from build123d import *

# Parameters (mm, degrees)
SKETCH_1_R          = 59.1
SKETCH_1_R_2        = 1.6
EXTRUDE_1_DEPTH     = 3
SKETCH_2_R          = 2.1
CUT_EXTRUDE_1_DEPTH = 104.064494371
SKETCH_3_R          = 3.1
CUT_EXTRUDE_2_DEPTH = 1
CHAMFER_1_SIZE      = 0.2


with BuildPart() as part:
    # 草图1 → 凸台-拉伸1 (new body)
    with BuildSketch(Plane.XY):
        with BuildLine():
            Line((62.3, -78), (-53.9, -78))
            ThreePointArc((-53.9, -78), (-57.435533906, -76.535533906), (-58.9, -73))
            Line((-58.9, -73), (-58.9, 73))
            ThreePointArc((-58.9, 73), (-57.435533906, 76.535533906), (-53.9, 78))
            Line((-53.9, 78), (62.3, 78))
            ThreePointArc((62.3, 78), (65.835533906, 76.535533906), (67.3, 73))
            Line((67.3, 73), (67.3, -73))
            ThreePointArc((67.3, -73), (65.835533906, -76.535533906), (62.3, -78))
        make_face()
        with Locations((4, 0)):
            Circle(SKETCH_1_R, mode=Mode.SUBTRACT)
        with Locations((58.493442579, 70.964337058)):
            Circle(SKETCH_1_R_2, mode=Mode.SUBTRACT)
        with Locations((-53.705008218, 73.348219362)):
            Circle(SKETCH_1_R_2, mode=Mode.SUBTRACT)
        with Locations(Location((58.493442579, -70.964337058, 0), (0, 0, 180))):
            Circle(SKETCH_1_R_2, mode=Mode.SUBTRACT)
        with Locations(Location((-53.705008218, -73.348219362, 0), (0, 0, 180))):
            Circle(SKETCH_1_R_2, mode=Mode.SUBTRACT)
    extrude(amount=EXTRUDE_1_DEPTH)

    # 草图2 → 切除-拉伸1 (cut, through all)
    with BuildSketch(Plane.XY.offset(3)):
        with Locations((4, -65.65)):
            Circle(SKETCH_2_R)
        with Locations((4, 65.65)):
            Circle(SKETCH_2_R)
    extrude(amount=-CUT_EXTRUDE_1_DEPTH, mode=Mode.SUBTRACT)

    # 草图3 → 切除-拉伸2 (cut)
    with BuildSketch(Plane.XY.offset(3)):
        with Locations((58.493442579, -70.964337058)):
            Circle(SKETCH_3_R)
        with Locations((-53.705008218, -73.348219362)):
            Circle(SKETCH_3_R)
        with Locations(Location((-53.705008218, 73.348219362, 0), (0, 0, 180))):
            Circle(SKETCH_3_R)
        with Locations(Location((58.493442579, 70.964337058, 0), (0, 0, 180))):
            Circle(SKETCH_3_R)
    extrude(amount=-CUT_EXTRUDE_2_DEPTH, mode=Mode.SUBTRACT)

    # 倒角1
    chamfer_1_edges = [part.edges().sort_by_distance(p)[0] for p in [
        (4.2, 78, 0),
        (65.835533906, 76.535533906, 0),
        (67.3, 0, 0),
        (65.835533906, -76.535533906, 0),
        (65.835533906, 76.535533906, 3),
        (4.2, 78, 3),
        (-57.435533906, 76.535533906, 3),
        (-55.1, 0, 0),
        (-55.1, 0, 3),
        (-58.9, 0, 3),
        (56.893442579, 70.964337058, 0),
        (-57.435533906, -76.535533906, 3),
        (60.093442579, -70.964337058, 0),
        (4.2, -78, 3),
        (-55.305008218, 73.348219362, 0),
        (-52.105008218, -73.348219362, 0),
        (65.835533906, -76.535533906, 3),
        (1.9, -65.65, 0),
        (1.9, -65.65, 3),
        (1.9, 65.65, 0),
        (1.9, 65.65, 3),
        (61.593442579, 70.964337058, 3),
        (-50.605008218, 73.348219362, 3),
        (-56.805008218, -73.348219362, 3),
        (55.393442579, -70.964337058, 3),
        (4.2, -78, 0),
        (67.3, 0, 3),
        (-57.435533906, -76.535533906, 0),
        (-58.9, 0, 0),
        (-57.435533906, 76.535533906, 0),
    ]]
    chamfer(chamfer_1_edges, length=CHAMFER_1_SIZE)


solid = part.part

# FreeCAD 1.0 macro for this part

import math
import FreeCAD as App
import Part
import Sketcher

V = App.Vector
Q = App.Units.Quantity


def edges_at(feature, points):
    """Names of the edges that pass closest to the given points."""
    edges = feature.Shape.Edges
    near = lambda p: min(range(len(edges)), key=lambda i: edges[i].distToShape(Part.Vertex(*p))[0])
    return sorted({f"Edge{near(p) + 1}" for p in points})

doc = App.newDocument("Part")
params = doc.addObject("Spreadsheet::Sheet", "Params")
for row, (alias, value) in enumerate([
    ("sketch1_radius", "5 mm"),
    ("sketch1_diameter", "3.2 mm"),
    ("sketch1_diameter2", "118.2 mm"),
    ("sketch1_height", "146 mm"),
    ("sketch1_width", "116.2 mm"),
    ("pad1_length", "3 mm"),
    ("sketch2_diameter", "4.2 mm"),
    ("sketch3_diameter", "6.2 mm"),
    ("pocket2_length", "1 mm"),
    ("chamfer_size", "0.2 mm"),
], start=1):
    params.set(f"A{row}", alias)
    params.set(f"B{row}", "=" + value)
    params.setAlias(f"B{row}", alias)

body = doc.addObject("PartDesign::Body", "Body")

sketch1 = body.newObject("Sketcher::SketchObject", "Sketch")
sketch1.AttachmentSupport = (doc.getObject("XY_Plane"), [""])
sketch1.MapMode = "FlatFace"
sketch1.addGeometry([
    Part.LineSegment(V(-53.9, -78, 0), V(62.3, -78, 0)),
    Part.ArcOfCircle(Part.Circle(V(62.3, -73, 0), V(0, 0, 1), 5), math.radians(-90), math.radians(0)),
    Part.LineSegment(V(67.3, -73, 0), V(67.3, 73, 0)),
    Part.ArcOfCircle(Part.Circle(V(62.3, 73, 0), V(0, 0, 1), 5), math.radians(0), math.radians(90)),
    Part.LineSegment(V(62.3, 78, 0), V(-53.9, 78, 0)),
    Part.ArcOfCircle(Part.Circle(V(-53.9, 73, 0), V(0, 0, 1), 5), math.radians(90), math.radians(180)),
    Part.LineSegment(V(-58.9, 73, 0), V(-58.9, -73, 0)),
    Part.ArcOfCircle(Part.Circle(V(-53.9, -73, 0), V(0, 0, 1), 5), math.radians(180), math.radians(270)),
    Part.Circle(V(58.5, -71, 0), V(0, 0, 1), 1.6),
    Part.Circle(V(-53.7, -73.3, 0), V(0, 0, 1), 1.6),
    Part.Circle(V(4, 0, 0), V(0, 0, 1), 59.1),
    Part.Circle(V(58.5, 71, 0), V(0, 0, 1), 1.6),
    Part.Circle(V(-53.7, 73.3, 0), V(0, 0, 1), 1.6),
], False)
sketch1.addConstraint([
    Sketcher.Constraint("Tangent", 0, 2, 1, 1),
    Sketcher.Constraint("Tangent", 1, 2, 2, 1),
    Sketcher.Constraint("Tangent", 2, 2, 3, 1),
    Sketcher.Constraint("Tangent", 3, 2, 4, 1),
    Sketcher.Constraint("Tangent", 4, 2, 5, 1),
    Sketcher.Constraint("Tangent", 5, 2, 6, 1),
    Sketcher.Constraint("Tangent", 6, 2, 7, 1),
    Sketcher.Constraint("Tangent", 7, 2, 0, 1),
    Sketcher.Constraint("Horizontal", 0),
    Sketcher.Constraint("Vertical", 2),
    Sketcher.Constraint("Horizontal", 4),
    Sketcher.Constraint("Vertical", 6),
    Sketcher.Constraint("Equal", 1, 3),
    Sketcher.Constraint("Equal", 3, 5),
    Sketcher.Constraint("Equal", 5, 7),
    Sketcher.Constraint("Equal", 8, 9),
    Sketcher.Constraint("Equal", 9, 11),
    Sketcher.Constraint("Equal", 11, 12),
    Sketcher.Constraint("Symmetric", 8, 3, 11, 3, -1),
    Sketcher.Constraint("Symmetric", 9, 3, 12, 3, -1),
    Sketcher.Constraint("PointOnObject", 10, 3, -1),
    Sketcher.Constraint("Radius", 1, Q("5 mm")),
    Sketcher.Constraint("Diameter", 8, Q("3.2 mm")),
    Sketcher.Constraint("Diameter", 10, Q("118.2 mm")),
    Sketcher.Constraint("DistanceY", 2, 1, 2, 2, Q("146 mm")),
    Sketcher.Constraint("DistanceX", 0, 1, 0, 2, Q("116.2 mm")),
    Sketcher.Constraint("DistanceY", 1, 3, -1, 1, Q("73 mm")),
    Sketcher.Constraint("DistanceX", -1, 1, 10, 3, Q("4 mm")),
    Sketcher.Constraint("DistanceX", -1, 1, 1, 3, Q("62.3 mm")),
    Sketcher.Constraint("DistanceX", 9, 3, -1, 1, Q("53.705008 mm")),
    Sketcher.Constraint("DistanceY", 9, 3, -1, 1, Q("73.348219 mm")),
    Sketcher.Constraint("DistanceX", 9, 3, 8, 3, Q("112.198451 mm")),
    Sketcher.Constraint("DistanceY", 8, 3, -1, 1, Q("70.964337 mm")),
])
sketch1.setExpression("Constraints[21]", "Params.sketch1_radius")
sketch1.setExpression("Constraints[22]", "Params.sketch1_diameter")
sketch1.setExpression("Constraints[23]", "Params.sketch1_diameter2")
sketch1.setExpression("Constraints[24]", "Params.sketch1_height")
sketch1.setExpression("Constraints[25]", "Params.sketch1_width")
pad1 = body.newObject("PartDesign::Pad", "Pad")
pad1.Profile = sketch1
pad1.setExpression("Length", "Params.pad1_length")

sketch2 = body.newObject("Sketcher::SketchObject", "Sketch001")
sketch2.AttachmentSupport = (doc.getObject("XY_Plane"), [""])
sketch2.MapMode = "FlatFace"
sketch2.AttachmentOffset = App.Placement(V(0, 0, 3), App.Rotation())
sketch2.addGeometry([
    Part.Circle(V(4, -65.7, 0), V(0, 0, 1), 2.1),
    Part.Circle(V(4, 65.7, 0), V(0, 0, 1), 2.1),
], False)
sketch2.addConstraint([
    Sketcher.Constraint("Equal", 0, 1),
    Sketcher.Constraint("Symmetric", 0, 3, 1, 3, -1),
    Sketcher.Constraint("Diameter", 0, Q("4.2 mm")),
    Sketcher.Constraint("DistanceX", -1, 1, 0, 3, Q("4 mm")),
    Sketcher.Constraint("DistanceY", 0, 3, 1, 3, Q("131.3 mm")),
])
sketch2.setExpression("Constraints[2]", "Params.sketch2_diameter")
pocket1 = body.newObject("PartDesign::Pocket", "Pocket")
pocket1.Profile = sketch2
pocket1.Type = "ThroughAll"

sketch3 = body.newObject("Sketcher::SketchObject", "Sketch002")
sketch3.AttachmentSupport = (doc.getObject("XY_Plane"), [""])
sketch3.MapMode = "FlatFace"
sketch3.AttachmentOffset = App.Placement(V(0, 0, 3), App.Rotation())
sketch3.addGeometry([
    Part.Circle(V(58.5, -71, 0), V(0, 0, 1), 3.1),
    Part.Circle(V(-53.7, -73.3, 0), V(0, 0, 1), 3.1),
    Part.Circle(V(-53.7, 73.3, 0), V(0, 0, 1), 3.1),
    Part.Circle(V(58.5, 71, 0), V(0, 0, 1), 3.1),
], False)
sketch3.addConstraint([
    Sketcher.Constraint("Equal", 0, 1),
    Sketcher.Constraint("Equal", 1, 2),
    Sketcher.Constraint("Equal", 2, 3),
    Sketcher.Constraint("Symmetric", 1, 3, 2, 3, -1),
    Sketcher.Constraint("Symmetric", 0, 3, 3, 3, -1),
    Sketcher.Constraint("Diameter", 0, Q("6.2 mm")),
    Sketcher.Constraint("DistanceX", 1, 3, -1, 1, Q("53.705008 mm")),
    Sketcher.Constraint("DistanceY", 1, 3, -1, 1, Q("73.348219 mm")),
    Sketcher.Constraint("DistanceX", 1, 3, 0, 3, Q("112.198451 mm")),
    Sketcher.Constraint("DistanceY", 0, 3, -1, 1, Q("70.964337 mm")),
])
sketch3.setExpression("Constraints[5]", "Params.sketch3_diameter")
pocket2 = body.newObject("PartDesign::Pocket", "Pocket001")
pocket2.Profile = sketch3
pocket2.setExpression("Length", "Params.pocket2_length")
doc.recompute()

chamfer = body.newObject("PartDesign::Chamfer", "Chamfer")
chamfer.Base = (pocket2, edges_at(pocket2, [
    (4.2, 78, 0),
    (65.836, 76.536, 0),
    (67.3, 0, 0),
    (65.836, -76.536, 0),
    (65.836, 76.536, 3),
    (4.2, 78, 3),
    (-57.436, 76.536, 3),
    (-55.1, 0, 0),
    (-55.1, 0, 3),
    (-58.9, 0, 3),
    (56.893, 70.964, 0),
    (-57.436, -76.536, 3),
    (60.093, -70.964, 0),
    (4.2, -78, 3),
    (-55.305, 73.348, 0),
    (-52.105, -73.348, 0),
    (65.836, -76.536, 3),
    (1.9, -65.65, 0),
    (1.9, -65.65, 3),
    (1.9, 65.65, 0),
    (1.9, 65.65, 3),
    (61.593, 70.964, 3),
    (-50.605, 73.348, 3),
    (-56.805, -73.348, 3),
    (55.393, -70.964, 3),
    (4.2, -78, 0),
    (67.3, 0, 3),
    (-57.436, -76.536, 0),
    (-58.9, 0, 0),
    (-57.436, 76.536, 0),
]))
chamfer.setExpression("Size", "Params.chamfer_size")

doc.recompute()
